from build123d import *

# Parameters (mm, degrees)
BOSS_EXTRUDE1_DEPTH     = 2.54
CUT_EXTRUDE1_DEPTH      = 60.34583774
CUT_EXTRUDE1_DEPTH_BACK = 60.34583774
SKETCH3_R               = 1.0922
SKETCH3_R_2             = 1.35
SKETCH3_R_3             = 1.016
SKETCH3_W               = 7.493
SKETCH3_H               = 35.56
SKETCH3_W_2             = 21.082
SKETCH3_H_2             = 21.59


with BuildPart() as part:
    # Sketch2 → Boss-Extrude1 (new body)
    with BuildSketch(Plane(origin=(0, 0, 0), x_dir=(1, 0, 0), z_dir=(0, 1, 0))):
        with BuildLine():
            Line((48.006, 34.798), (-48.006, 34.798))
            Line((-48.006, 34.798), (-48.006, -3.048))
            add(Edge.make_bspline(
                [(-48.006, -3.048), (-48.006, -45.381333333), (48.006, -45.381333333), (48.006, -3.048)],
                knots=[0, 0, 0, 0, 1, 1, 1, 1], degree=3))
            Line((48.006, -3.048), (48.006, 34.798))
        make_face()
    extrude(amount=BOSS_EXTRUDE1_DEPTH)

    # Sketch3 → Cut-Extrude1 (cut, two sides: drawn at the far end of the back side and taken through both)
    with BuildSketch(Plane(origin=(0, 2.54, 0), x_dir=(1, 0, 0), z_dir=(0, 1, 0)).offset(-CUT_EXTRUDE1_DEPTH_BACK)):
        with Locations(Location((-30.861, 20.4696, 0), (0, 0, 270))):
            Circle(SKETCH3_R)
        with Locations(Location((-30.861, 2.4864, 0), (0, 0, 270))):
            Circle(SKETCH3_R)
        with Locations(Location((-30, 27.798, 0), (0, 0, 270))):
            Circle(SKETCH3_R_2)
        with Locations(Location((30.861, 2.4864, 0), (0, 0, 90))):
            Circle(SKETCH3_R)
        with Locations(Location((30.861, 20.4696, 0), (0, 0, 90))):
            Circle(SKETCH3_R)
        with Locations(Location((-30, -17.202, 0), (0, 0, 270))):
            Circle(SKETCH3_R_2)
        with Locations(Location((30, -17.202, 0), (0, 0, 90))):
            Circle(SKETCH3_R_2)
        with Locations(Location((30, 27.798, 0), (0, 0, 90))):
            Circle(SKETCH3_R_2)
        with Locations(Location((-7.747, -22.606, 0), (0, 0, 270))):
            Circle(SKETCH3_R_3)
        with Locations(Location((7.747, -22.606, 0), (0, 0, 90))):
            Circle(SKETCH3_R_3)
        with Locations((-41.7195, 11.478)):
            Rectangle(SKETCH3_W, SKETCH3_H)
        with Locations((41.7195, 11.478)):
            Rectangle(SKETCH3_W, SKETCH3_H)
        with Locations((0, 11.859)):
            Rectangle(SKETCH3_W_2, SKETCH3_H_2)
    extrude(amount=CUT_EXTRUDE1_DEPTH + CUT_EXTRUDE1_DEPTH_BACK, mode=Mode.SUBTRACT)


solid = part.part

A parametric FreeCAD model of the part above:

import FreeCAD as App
import Part
import Sketcher
Q = App.Units.Quantity


def add_polygon(sketch, points):
    """Adds a closed chain of lines whose ends are joined by coincident constraints."""
    first, n = sketch.GeometryCount, len(points)
    for a, b in zip(points, points[1:] + points[:1]):
        sketch.addGeometry(Part.LineSegment(App.Vector(*a, 0), App.Vector(*b, 0)), False)
    for i in range(n):
        sketch.addConstraint(Sketcher.Constraint("Coincident", first + i, 2, first + (i + 1) % n, 1))

doc = App.newDocument("Part")
params = doc.addObject("Spreadsheet::Sheet", "Params")
for row, (alias, value) in enumerate([
    ("sketch1_height", "1.49 in"),
    ("pad1_length", "0.1 in"),
    ("sketch2_diameter", "0.08 in"),
    ("sketch2_diameter2", "0.086 in"),
    ("sketch2_height", "1.4 in"),
    ("sketch2_width", "0.83 in"),
    ("sketch2_height2", "0.85 in"),
], start=1):
    params.set(f"A{row}", alias)
    params.set(f"B{row}", "=" + value)
    params.setAlias(f"B{row}", alias)

body = doc.addObject("PartDesign::Body", "Body")

sketch1 = body.newObject("Sketcher::SketchObject", "Sketch")
sketch1.AttachmentSupport = (doc.getObject("XZ_Plane"), [""])
sketch1.MapMode = "FlatFace"
sketch1.addGeometry([
    Part.LineSegment(App.Vector(48.006, -34.798, 0), App.Vector(-48.006, -34.798, 0)),
    Part.LineSegment(App.Vector(-48.006, -34.798, 0), App.Vector(-48.006, 3.048, 0)),
    Part.BSplineCurve([App.Vector(-48.006, 3.048, 0), App.Vector(-48.006, 45.381333, 0), App.Vector(48.006, 45.381333, 0), App.Vector(48.006, 3.048, 0)], [4, 4], [0, 1], False, 3, [1, 1, 1, 1], False),
    Part.LineSegment(App.Vector(48.006, 3.048, 0), App.Vector(48.006, -34.798, 0)),
], False)
sketch1.addConstraint([
    Sketcher.Constraint("Block", 2),
    Sketcher.Constraint("Coincident", 0, 2, 1, 1),
    Sketcher.Constraint("Coincident", 1, 2, 2, 1),
    Sketcher.Constraint("Coincident", 2, 2, 3, 1),
    Sketcher.Constraint("Coincident", 3, 2, 0, 1),
    Sketcher.Constraint("Horizontal", 0),
    Sketcher.Constraint("Vertical", 1),
    Sketcher.Constraint("Vertical", 3),
    Sketcher.Constraint("DistanceY", 1, 1, 1, 2, Q("1.49 in")),
])
sketch1.setExpression("Constraints[8]", "Params.sketch1_height")
pad1 = body.newObject("PartDesign::Pad", "Pad")
pad1.Profile = sketch1
pad1.setExpression("Length", "Params.pad1_length")
pad1.Reversed = True

sketch2 = body.newObject("Sketcher::SketchObject", "Sketch001")
sketch2.AttachmentSupport = (doc.getObject("XZ_Plane"), [""])
sketch2.MapMode = "FlatFace"
sketch2.AttachmentOffset = App.Placement(App.Vector(0, 0, -0.1 * 25.4), App.Rotation())
sketch2.addGeometry(Part.Circle(App.Vector(-30.9, -20.5, 0), App.Vector(0, 0, 1), 1.1), False)
sketch2.addGeometry(Part.Circle(App.Vector(-30.9, -2.5, 0), App.Vector(0, 0, 1), 1.1), False)
sketch2.addGeometry(Part.Circle(App.Vector(-30, -27.8, 0), App.Vector(0, 0, 1), 1.4), False)
sketch2.addGeometry(Part.Circle(App.Vector(30.9, -2.5, 0), App.Vector(0, 0, 1), 1.1), False)
sketch2.addGeometry(Part.Circle(App.Vector(30.9, -20.5, 0), App.Vector(0, 0, 1), 1.1), False)
sketch2.addGeometry(Part.Circle(App.Vector(-30, 17.2, 0), App.Vector(0, 0, 1), 1.4), False)
sketch2.addGeometry(Part.Circle(App.Vector(30, 17.2, 0), App.Vector(0, 0, 1), 1.4), False)
sketch2.addGeometry(Part.Circle(App.Vector(30, -27.8, 0), App.Vector(0, 0, 1), 1.4), False)
sketch2.addGeometry(Part.Circle(App.Vector(-7.7, 22.6, 0), App.Vector(0, 0, 1), 1), False)
sketch2.addGeometry(Part.Circle(App.Vector(7.7, 22.6, 0), App.Vector(0, 0, 1), 1), False)
add_polygon(sketch2, [(-45.5, -29.3), (-45.5, 6.3), (-38, 6.3), (-38, -29.3)])
add_polygon(sketch2, [(38, -29.3), (38, 6.3), (45.5, 6.3), (45.5, -29.3)])
add_polygon(sketch2, [(-10.5, -22.7), (-10.5, -1.1), (10.5, -1.1), (10.5, -22.7)])
sketch2.addConstraint([
    Sketcher.Constraint("Vertical", 10),
    Sketcher.Constraint("Horizontal", 11),
    Sketcher.Constraint("Vertical", 12),
    Sketcher.Constraint("Horizontal", 13),
    Sketcher.Constraint("Vertical", 14),
    Sketcher.Constraint("Horizontal", 15),
    Sketcher.Constraint("Vertical", 16),
    Sketcher.Constraint("Horizontal", 17),
    Sketcher.Constraint("Vertical", 18),
    Sketcher.Constraint("Horizontal", 19),
    Sketcher.Constraint("Vertical", 20),
    Sketcher.Constraint("Horizontal", 21),
    Sketcher.Constraint("Equal", 0, 1),
    Sketcher.Constraint("Equal", 1, 3),
    Sketcher.Constraint("Equal", 3, 4),
    Sketcher.Constraint("Equal", 2, 5),
    Sketcher.Constraint("Equal", 5, 6),
    Sketcher.Constraint("Equal", 6, 7),
    Sketcher.Constraint("Equal", 8, 9),
    Sketcher.Constraint("Symmetric", 1, 3, 3, 3, -2),
    Sketcher.Constraint("Symmetric", 0, 3, 4, 3, -2),
    Sketcher.Constraint("Symmetric", 5, 3, 6, 3, -2),
    Sketcher.Constraint("Symmetric", 2, 3, 7, 3, -2),
    Sketcher.Constraint("Symmetric", 8, 3, 9, 3, -2),
    Sketcher.Constraint("Symmetric", 11, 2, 14, 2, -2),
    Sketcher.Constraint("Symmetric", 13, 2, 16, 2, -2),
    Sketcher.Constraint("Vertical", 0, 3, 1, 3),
    Sketcher.Constraint("Vertical", 2, 3, 5, 3),
    Sketcher.Constraint("Diameter", 8, Q("0.08 in")),
    Sketcher.Constraint("Diameter", 0, Q("0.086 in")),
    Sketcher.Constraint("DistanceY", 10, 1, 10, 2, Q("1.4 in")),
    Sketcher.Constraint("DistanceX", 19, 1, 19, 2, Q("0.83 in")),
    Sketcher.Constraint("DistanceY", 18, 1, 18, 2, Q("0.85 in")),
    Sketcher.Constraint("DistanceX", 1, 3, 18, 2, Q("0.8 in")),
    Sketcher.Constraint("DistanceX", 19, 2, 3, 3, Q("0.8 in")),
    Sketcher.Constraint("Diameter", 2, 2.7),
    Sketcher.Constraint("DistanceX", 11, 1, 11, 2, Q("0.295 in")),
    Sketcher.Constraint("DistanceY", -1, 1, 8, 3, Q("0.89 in")),
    Sketcher.Constraint("DistanceX", 10, 2, -1, 1, Q("1.79 in")),
    Sketcher.Constraint("DistanceX", 1, 3, 8, 3, Q("0.91 in")),
    Sketcher.Constraint("DistanceY", 18, 2, 11, 2, Q("0.29 in")),
    Sketcher.Constraint("DistanceY", 0, 3, 1, 3, Q("0.708 in")),
    Sketcher.Constraint("DistanceY", 1, 3, 10, 2, Q("0.346 in")),
    Sketcher.Constraint("DistanceY", 0, 3, -1, 1, 20.4696),
    Sketcher.Constraint("DistanceX", 2, 3, -1, 1, 30.0),
    Sketcher.Constraint("DistanceY", 2, 3, -1, 1, 27.798),
    Sketcher.Constraint("DistanceY", -1, 1, 5, 3, 17.202),
])
sketch2.setExpression("Constraints[40]", "Params.sketch2_diameter")
sketch2.setExpression("Constraints[41]", "Params.sketch2_diameter2")
sketch2.setExpression("Constraints[42]", "Params.sketch2_height")
sketch2.setExpression("Constraints[43]", "Params.sketch2_width")
sketch2.setExpression("Constraints[44]", "Params.sketch2_height2")
pocket1 = body.newObject("PartDesign::Pocket", "Pocket")
pocket1.Profile = sketch2
pocket1.Type = "ThroughAll"
pocket1.Midplane = True

doc.recompute()
